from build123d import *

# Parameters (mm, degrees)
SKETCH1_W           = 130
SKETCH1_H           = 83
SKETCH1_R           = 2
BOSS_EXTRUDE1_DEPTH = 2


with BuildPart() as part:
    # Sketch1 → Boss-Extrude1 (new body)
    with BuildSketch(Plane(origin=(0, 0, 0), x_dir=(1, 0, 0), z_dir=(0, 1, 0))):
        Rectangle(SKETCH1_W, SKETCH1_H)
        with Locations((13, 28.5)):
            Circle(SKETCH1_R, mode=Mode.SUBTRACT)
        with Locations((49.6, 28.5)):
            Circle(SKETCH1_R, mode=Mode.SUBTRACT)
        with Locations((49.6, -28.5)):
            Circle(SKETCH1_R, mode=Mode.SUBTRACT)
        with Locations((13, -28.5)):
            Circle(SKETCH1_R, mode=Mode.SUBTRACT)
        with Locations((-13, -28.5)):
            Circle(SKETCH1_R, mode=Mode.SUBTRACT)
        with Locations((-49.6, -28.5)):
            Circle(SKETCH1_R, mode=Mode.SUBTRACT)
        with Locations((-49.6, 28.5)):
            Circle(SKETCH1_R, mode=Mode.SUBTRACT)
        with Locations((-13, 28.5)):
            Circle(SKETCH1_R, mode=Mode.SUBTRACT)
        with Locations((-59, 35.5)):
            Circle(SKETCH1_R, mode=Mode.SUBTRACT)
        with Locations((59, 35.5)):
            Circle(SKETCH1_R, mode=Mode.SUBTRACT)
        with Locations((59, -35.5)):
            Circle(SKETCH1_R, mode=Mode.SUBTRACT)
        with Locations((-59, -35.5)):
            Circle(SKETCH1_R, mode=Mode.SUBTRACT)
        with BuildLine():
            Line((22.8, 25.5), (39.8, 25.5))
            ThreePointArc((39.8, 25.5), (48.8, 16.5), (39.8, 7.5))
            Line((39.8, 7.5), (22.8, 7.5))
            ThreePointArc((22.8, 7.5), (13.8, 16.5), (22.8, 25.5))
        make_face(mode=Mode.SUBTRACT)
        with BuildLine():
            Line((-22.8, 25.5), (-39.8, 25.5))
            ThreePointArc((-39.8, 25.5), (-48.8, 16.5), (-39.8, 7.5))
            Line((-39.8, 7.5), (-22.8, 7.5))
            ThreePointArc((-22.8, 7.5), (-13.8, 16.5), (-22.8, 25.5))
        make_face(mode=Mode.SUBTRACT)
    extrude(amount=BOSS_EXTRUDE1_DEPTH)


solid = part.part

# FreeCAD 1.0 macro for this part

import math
import FreeCAD as App
import Part
import Sketcher

V = App.Vector
Q = App.Units.Quantity


def add_polygon(sketch, points):
    """Adds a closed chain of lines whose ends are joined by coincident constraints."""
    first, n = sketch.GeometryCount, len(points)
    for a, b in zip(points, points[1:] + points[:1]):
        sketch.addGeometry(Part.LineSegment(App.Vector(*a, 0), App.Vector(*b, 0)), False)
    for i in range(n):
        sketch.addConstraint(Sketcher.Constraint("Coincident", first + i, 2, first + (i + 1) % n, 1))

doc = App.newDocument("Part")
body = doc.addObject("PartDesign::Body", "Body")

sketch1 = body.newObject("Sketcher::SketchObject", "Sketch")
sketch1.AttachmentSupport = (doc.getObject("XZ_Plane"), [""])
sketch1.MapMode = "FlatFace"
add_polygon(sketch1, [(-65, -41.5), (-65, 41.5), (65, 41.5), (65, -41.5)])
sketch1.addGeometry(Part.Circle(V(-59, 35.5, 0), V(0, 0, 1), 2), False)
sketch1.addGeometry(Part.Circle(V(-49.6, 28.5, 0), V(0, 0, 1), 2), False)
sketch1.addGeometry(Part.Circle(V(-13, 28.5, 0), V(0, 0, 1), 2), False)
sketch1.addGeometry(Part.Circle(V(13, 28.5, 0), V(0, 0, 1), 2), False)
sketch1.addGeometry(Part.Circle(V(59, 35.5, 0), V(0, 0, 1), 2), False)
sketch1.addGeometry(Part.Circle(V(49.6, 28.5, 0), V(0, 0, 1), 2), False)
sketch1.addGeometry(Part.LineSegment(V(-39.8, -25.5, 0), V(-22.8, -25.5, 0)), False)
sketch1.addGeometry(Part.ArcOfCircle(Part.Circle(V(-22.8, -16.5, 0), V(0, 0, 1), 9), math.radians(-90), math.radians(90)), False)
sketch1.addGeometry(Part.LineSegment(V(-22.8, -7.5, 0), V(-39.8, -7.5, 0)), False)
sketch1.addGeometry(Part.ArcOfCircle(Part.Circle(V(-39.8, -16.5, 0), V(0, 0, 1), 9), math.radians(90), math.radians(270)), False)
sketch1.addGeometry(Part.Circle(V(-49.6, -28.5, 0), V(0, 0, 1), 2), False)
sketch1.addGeometry(Part.Circle(V(-59, -35.5, 0), V(0, 0, 1), 2), False)
sketch1.addGeometry(Part.Circle(V(-13, -28.5, 0), V(0, 0, 1), 2), False)
sketch1.addGeometry(Part.ArcOfCircle(Part.Circle(V(22.8, -16.5, 0), V(0, 0, 1), 9), math.radians(90), math.radians(270)), False)
sketch1.addGeometry(Part.LineSegment(V(22.8, -25.5, 0), V(39.8, -25.5, 0)), False)
sketch1.addGeometry(Part.ArcOfCircle(Part.Circle(V(39.8, -16.5, 0), V(0, 0, 1), 9), math.radians(-90), math.radians(90)), False)
sketch1.addGeometry(Part.LineSegment(V(39.8, -7.5, 0), V(22.8, -7.5, 0)), False)
sketch1.addGeometry(Part.Circle(V(13, -28.5, 0), V(0, 0, 1), 2), False)
sketch1.addGeometry(Part.Circle(V(49.6, -28.5, 0), V(0, 0, 1), 2), False)
sketch1.addGeometry(Part.Circle(V(59, -35.5, 0), V(0, 0, 1), 2), False)
sketch1.addConstraint([
    Sketcher.Constraint("Tangent", 10, 2, 11, 1),
    Sketcher.Constraint("Tangent", 11, 2, 12, 1),
    Sketcher.Constraint("Tangent", 12, 2, 13, 1),
    Sketcher.Constraint("Tangent", 13, 2, 10, 1),
    Sketcher.Constraint("Tangent", 17, 2, 18, 1),
    Sketcher.Constraint("Tangent", 18, 2, 19, 1),
    Sketcher.Constraint("Tangent", 19, 2, 20, 1),
    Sketcher.Constraint("Tangent", 20, 2, 17, 1),
    Sketcher.Constraint("Vertical", 0),
    Sketcher.Constraint("Horizontal", 1),
    Sketcher.Constraint("Vertical", 2),
    Sketcher.Constraint("Horizontal", 3),
    Sketcher.Constraint("Horizontal", 10),
    Sketcher.Constraint("Horizontal", 12),
    Sketcher.Constraint("Horizontal", 18),
    Sketcher.Constraint("Horizontal", 20),
    Sketcher.Constraint("Equal", 4, 5),
    Sketcher.Constraint("Equal", 5, 6),
    Sketcher.Constraint("Equal", 6, 7),
    Sketcher.Constraint("Equal", 7, 8),
    Sketcher.Constraint("Equal", 8, 9),
    Sketcher.Constraint("Equal", 9, 14),
    Sketcher.Constraint("Equal", 14, 15),
    Sketcher.Constraint("Equal", 15, 16),
    Sketcher.Constraint("Equal", 13, 17),
    Sketcher.Constraint("Equal", 16, 21),
    Sketcher.Constraint("Equal", 21, 22),
    Sketcher.Constraint("Equal", 22, 23),
    Sketcher.Constraint("Symmetric", 9, 3, 14, 3, -1, 1),
    Sketcher.Constraint("Symmetric", 8, 3, 15, 3, -1, 1),
    Sketcher.Constraint("Symmetric", 7, 3, 16, 3, -1, 1),
    Sketcher.Constraint("Symmetric", 6, 3, 21, 3, -1, 1),
    Sketcher.Constraint("Symmetric", 5, 3, 22, 3, -1, 1),
    Sketcher.Constraint("Symmetric", 4, 3, 23, 3, -1, 1),
    Sketcher.Constraint("Symmetric", 0, 2, 2, 2, -1, 1),
    Sketcher.Constraint("Symmetric", 6, 3, 7, 3, -2),
    Sketcher.Constraint("Symmetric", 4, 3, 8, 3, -2),
    Sketcher.Constraint("Symmetric", 5, 3, 9, 3, -2),
    Sketcher.Constraint("Symmetric", 11, 3, 17, 3, -2),
    Sketcher.Constraint("Horizontal", 5, 3, 6, 3),
    Sketcher.Constraint("Equal", 12, 18),
    Sketcher.Constraint("Diameter", 4, Q("4 mm")),
    Sketcher.Constraint("Radius", 11, Q("9 mm")),
    Sketcher.Constraint("DistanceX", 1, 1, 1, 2, Q("130 mm")),
    Sketcher.Constraint("DistanceX", 10, 1, 10, 2, Q("17 mm")),
    Sketcher.Constraint("DistanceY", 0, 1, 0, 2, Q("83 mm")),
    Sketcher.Constraint("DistanceX", 4, 3, -1, 1, Q("59 mm")),
    Sketcher.Constraint("DistanceX", 6, 3, -1, 1, Q("13 mm")),
    Sketcher.Constraint("DistanceY", 5, 3, 4, 3, Q("7 mm")),
    Sketcher.Constraint("DistanceY", 11, 3, 6, 3, Q("45 mm")),
    Sketcher.Constraint("DistanceY", 14, 3, 13, 3, Q("12 mm")),
    Sketcher.Constraint("DistanceX", 5, 3, -1, 1, Q("49.6 mm")),
    Sketcher.Constraint("DistanceX", 11, 3, -1, 1, Q("22.8 mm")),
])
pad1 = body.newObject("PartDesign::Pad", "Pad")
pad1.Profile = sketch1
pad1.Length = 2
pad1.Reversed = True

doc.recompute()
